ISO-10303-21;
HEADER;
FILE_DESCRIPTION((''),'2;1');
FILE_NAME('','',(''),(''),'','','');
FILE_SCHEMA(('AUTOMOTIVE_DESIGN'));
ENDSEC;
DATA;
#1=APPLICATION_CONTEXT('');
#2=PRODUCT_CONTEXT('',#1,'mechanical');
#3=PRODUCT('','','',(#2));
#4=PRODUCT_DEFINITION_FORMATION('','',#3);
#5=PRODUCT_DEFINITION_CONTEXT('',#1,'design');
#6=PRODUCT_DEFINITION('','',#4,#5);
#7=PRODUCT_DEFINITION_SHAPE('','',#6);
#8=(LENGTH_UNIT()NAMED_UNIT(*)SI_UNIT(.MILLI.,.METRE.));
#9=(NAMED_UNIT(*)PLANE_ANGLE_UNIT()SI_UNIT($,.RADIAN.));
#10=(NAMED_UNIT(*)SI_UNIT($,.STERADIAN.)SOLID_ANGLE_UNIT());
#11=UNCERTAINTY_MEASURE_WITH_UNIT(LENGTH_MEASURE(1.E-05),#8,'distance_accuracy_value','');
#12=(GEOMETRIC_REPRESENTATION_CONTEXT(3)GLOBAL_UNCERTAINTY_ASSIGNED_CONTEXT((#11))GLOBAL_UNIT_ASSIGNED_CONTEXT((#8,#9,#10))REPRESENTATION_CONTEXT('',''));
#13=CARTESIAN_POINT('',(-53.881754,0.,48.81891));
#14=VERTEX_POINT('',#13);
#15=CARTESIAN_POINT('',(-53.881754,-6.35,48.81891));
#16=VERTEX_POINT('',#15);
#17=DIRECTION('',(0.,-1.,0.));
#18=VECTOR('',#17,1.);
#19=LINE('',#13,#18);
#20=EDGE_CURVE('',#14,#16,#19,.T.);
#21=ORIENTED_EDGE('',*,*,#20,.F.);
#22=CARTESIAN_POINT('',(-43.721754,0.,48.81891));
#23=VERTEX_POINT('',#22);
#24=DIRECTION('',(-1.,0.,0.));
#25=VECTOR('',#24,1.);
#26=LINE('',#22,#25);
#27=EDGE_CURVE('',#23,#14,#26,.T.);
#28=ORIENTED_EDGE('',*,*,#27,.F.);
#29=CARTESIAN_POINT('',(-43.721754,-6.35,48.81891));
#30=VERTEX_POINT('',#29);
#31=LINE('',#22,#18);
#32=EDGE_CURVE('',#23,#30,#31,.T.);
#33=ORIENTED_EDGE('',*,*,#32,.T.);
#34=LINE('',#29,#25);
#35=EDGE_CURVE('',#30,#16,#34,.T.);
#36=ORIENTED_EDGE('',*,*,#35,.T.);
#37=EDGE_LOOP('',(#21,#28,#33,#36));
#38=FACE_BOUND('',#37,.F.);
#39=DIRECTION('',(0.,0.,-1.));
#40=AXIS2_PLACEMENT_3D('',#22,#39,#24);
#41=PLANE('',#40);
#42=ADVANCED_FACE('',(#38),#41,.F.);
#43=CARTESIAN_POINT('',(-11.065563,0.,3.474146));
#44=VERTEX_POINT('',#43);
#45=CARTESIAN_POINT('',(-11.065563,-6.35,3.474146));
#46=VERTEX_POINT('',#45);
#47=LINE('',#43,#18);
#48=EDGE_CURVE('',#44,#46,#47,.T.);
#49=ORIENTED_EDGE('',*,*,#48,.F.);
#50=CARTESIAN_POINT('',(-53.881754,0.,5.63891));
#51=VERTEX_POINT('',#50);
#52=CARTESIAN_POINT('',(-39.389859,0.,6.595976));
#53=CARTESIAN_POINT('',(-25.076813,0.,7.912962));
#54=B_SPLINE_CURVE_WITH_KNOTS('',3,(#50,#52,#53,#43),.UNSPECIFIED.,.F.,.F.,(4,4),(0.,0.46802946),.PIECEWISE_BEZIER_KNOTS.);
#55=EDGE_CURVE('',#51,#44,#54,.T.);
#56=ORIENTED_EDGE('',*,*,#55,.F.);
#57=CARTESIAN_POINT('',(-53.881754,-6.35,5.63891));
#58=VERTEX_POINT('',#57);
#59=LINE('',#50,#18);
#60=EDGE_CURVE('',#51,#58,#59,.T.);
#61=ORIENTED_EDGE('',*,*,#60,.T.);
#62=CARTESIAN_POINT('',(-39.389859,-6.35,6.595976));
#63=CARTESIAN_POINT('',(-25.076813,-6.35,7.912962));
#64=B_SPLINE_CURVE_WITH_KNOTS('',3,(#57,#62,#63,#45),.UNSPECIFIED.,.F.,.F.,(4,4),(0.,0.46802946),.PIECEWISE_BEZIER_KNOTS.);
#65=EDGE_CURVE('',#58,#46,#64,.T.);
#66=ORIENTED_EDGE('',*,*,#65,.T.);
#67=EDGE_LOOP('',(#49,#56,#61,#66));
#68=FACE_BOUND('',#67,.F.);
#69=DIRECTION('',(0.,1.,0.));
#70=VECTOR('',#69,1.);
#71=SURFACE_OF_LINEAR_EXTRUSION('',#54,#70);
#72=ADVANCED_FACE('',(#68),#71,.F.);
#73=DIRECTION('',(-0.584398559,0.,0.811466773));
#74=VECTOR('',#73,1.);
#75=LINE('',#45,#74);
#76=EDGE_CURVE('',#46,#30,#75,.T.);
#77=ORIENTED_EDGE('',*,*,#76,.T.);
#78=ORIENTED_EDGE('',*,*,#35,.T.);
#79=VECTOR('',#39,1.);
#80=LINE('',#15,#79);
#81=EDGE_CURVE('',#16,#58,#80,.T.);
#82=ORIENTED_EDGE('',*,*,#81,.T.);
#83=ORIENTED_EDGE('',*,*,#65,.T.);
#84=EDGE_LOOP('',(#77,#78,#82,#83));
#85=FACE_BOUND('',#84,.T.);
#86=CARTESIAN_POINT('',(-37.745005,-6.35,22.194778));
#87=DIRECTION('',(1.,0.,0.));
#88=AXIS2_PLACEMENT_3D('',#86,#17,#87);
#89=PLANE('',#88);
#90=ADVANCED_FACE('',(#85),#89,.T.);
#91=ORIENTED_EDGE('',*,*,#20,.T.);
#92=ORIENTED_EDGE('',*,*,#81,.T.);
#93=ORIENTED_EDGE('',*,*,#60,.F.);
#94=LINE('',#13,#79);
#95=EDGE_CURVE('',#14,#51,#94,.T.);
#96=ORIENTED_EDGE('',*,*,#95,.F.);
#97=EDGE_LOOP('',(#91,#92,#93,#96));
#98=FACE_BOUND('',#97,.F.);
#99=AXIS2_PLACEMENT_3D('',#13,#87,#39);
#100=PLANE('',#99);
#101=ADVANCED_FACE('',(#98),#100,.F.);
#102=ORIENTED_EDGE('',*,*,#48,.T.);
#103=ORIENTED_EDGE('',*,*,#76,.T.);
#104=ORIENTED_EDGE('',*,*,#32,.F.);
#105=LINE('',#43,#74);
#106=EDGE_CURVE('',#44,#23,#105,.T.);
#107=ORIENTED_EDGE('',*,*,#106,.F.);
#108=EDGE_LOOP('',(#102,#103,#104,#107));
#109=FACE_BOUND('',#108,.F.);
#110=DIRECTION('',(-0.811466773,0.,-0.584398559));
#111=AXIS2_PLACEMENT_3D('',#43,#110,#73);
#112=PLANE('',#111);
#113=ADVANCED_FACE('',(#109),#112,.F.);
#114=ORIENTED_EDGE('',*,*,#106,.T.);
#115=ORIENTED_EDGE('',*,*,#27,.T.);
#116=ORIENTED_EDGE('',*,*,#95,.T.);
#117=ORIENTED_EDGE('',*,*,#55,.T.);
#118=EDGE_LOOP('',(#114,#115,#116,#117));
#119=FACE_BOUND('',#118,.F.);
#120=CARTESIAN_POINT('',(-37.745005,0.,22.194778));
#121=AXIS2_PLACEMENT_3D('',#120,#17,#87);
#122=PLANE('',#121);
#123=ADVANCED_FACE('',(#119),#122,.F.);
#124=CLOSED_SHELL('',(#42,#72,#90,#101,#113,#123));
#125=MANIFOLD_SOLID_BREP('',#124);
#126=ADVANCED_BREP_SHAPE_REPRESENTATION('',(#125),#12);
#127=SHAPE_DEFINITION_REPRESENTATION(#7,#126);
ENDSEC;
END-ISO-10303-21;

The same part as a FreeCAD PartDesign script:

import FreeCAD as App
import Part
import Sketcher
from FreeCAD import Vector
Q = App.Units.Quantity

doc = App.newDocument("Part")
body = doc.addObject("PartDesign::Body", "Body")

sketch1 = doc.addObject("Sketcher::SketchObject", "Sketch")
body.addObject(sketch1)
sketch1.AttachmentSupport = (doc.XZ_Plane, [""])
sketch1.MapMode = "FlatFace"
sketch1.addGeometry(Part.LineSegment(Vector(-43.721755, 48.81891, 0), Vector(-53.881754, 48.81891, 0)), False)
sketch1.addGeometry(Part.LineSegment(Vector(-53.881754, 48.81891, 0), Vector(-53.881754, 5.63891, 0)), False)
sketch1.addGeometry(Part.BSplineCurve([Vector(-53.881754, 5.63891, 0), Vector(-39.389859, 6.595976, 0), Vector(-25.076813, 7.912962, 0), Vector(-11.065563, 3.474146, 0)], [4, 4], [0, 0.46802946], False, 3, [1, 1, 1, 1], False), False)
sketch1.addGeometry(Part.LineSegment(Vector(-11.065563, 3.474146, 0), Vector(-43.721755, 48.81891, 0)), False)
sketch1.addConstraint(Sketcher.Constraint("Block", 2))
sketch1.addConstraint(Sketcher.Constraint("Coincident", 0, 2, 1, 1))
sketch1.addConstraint(Sketcher.Constraint("Coincident", 1, 2, 2, 1))
sketch1.addConstraint(Sketcher.Constraint("Coincident", 2, 2, 3, 1))
sketch1.addConstraint(Sketcher.Constraint("Coincident", 3, 2, 0, 1))
sketch1.addConstraint(Sketcher.Constraint("Horizontal", 0))
sketch1.addConstraint(Sketcher.Constraint("Vertical", 1))
sketch1.addConstraint(Sketcher.Constraint("DistanceX", 0, 2, 0, 1, Q("0.4 in")))
sketch1.addConstraint(Sketcher.Constraint("DistanceY", 1, 2, 1, 1, Q("1.7 in")))
pad1 = doc.addObject("PartDesign::Pad", "Pad")
body.addObject(pad1)
pad1.Profile = sketch1
pad1.Length = Q("0.25 in")

doc.recompute()
